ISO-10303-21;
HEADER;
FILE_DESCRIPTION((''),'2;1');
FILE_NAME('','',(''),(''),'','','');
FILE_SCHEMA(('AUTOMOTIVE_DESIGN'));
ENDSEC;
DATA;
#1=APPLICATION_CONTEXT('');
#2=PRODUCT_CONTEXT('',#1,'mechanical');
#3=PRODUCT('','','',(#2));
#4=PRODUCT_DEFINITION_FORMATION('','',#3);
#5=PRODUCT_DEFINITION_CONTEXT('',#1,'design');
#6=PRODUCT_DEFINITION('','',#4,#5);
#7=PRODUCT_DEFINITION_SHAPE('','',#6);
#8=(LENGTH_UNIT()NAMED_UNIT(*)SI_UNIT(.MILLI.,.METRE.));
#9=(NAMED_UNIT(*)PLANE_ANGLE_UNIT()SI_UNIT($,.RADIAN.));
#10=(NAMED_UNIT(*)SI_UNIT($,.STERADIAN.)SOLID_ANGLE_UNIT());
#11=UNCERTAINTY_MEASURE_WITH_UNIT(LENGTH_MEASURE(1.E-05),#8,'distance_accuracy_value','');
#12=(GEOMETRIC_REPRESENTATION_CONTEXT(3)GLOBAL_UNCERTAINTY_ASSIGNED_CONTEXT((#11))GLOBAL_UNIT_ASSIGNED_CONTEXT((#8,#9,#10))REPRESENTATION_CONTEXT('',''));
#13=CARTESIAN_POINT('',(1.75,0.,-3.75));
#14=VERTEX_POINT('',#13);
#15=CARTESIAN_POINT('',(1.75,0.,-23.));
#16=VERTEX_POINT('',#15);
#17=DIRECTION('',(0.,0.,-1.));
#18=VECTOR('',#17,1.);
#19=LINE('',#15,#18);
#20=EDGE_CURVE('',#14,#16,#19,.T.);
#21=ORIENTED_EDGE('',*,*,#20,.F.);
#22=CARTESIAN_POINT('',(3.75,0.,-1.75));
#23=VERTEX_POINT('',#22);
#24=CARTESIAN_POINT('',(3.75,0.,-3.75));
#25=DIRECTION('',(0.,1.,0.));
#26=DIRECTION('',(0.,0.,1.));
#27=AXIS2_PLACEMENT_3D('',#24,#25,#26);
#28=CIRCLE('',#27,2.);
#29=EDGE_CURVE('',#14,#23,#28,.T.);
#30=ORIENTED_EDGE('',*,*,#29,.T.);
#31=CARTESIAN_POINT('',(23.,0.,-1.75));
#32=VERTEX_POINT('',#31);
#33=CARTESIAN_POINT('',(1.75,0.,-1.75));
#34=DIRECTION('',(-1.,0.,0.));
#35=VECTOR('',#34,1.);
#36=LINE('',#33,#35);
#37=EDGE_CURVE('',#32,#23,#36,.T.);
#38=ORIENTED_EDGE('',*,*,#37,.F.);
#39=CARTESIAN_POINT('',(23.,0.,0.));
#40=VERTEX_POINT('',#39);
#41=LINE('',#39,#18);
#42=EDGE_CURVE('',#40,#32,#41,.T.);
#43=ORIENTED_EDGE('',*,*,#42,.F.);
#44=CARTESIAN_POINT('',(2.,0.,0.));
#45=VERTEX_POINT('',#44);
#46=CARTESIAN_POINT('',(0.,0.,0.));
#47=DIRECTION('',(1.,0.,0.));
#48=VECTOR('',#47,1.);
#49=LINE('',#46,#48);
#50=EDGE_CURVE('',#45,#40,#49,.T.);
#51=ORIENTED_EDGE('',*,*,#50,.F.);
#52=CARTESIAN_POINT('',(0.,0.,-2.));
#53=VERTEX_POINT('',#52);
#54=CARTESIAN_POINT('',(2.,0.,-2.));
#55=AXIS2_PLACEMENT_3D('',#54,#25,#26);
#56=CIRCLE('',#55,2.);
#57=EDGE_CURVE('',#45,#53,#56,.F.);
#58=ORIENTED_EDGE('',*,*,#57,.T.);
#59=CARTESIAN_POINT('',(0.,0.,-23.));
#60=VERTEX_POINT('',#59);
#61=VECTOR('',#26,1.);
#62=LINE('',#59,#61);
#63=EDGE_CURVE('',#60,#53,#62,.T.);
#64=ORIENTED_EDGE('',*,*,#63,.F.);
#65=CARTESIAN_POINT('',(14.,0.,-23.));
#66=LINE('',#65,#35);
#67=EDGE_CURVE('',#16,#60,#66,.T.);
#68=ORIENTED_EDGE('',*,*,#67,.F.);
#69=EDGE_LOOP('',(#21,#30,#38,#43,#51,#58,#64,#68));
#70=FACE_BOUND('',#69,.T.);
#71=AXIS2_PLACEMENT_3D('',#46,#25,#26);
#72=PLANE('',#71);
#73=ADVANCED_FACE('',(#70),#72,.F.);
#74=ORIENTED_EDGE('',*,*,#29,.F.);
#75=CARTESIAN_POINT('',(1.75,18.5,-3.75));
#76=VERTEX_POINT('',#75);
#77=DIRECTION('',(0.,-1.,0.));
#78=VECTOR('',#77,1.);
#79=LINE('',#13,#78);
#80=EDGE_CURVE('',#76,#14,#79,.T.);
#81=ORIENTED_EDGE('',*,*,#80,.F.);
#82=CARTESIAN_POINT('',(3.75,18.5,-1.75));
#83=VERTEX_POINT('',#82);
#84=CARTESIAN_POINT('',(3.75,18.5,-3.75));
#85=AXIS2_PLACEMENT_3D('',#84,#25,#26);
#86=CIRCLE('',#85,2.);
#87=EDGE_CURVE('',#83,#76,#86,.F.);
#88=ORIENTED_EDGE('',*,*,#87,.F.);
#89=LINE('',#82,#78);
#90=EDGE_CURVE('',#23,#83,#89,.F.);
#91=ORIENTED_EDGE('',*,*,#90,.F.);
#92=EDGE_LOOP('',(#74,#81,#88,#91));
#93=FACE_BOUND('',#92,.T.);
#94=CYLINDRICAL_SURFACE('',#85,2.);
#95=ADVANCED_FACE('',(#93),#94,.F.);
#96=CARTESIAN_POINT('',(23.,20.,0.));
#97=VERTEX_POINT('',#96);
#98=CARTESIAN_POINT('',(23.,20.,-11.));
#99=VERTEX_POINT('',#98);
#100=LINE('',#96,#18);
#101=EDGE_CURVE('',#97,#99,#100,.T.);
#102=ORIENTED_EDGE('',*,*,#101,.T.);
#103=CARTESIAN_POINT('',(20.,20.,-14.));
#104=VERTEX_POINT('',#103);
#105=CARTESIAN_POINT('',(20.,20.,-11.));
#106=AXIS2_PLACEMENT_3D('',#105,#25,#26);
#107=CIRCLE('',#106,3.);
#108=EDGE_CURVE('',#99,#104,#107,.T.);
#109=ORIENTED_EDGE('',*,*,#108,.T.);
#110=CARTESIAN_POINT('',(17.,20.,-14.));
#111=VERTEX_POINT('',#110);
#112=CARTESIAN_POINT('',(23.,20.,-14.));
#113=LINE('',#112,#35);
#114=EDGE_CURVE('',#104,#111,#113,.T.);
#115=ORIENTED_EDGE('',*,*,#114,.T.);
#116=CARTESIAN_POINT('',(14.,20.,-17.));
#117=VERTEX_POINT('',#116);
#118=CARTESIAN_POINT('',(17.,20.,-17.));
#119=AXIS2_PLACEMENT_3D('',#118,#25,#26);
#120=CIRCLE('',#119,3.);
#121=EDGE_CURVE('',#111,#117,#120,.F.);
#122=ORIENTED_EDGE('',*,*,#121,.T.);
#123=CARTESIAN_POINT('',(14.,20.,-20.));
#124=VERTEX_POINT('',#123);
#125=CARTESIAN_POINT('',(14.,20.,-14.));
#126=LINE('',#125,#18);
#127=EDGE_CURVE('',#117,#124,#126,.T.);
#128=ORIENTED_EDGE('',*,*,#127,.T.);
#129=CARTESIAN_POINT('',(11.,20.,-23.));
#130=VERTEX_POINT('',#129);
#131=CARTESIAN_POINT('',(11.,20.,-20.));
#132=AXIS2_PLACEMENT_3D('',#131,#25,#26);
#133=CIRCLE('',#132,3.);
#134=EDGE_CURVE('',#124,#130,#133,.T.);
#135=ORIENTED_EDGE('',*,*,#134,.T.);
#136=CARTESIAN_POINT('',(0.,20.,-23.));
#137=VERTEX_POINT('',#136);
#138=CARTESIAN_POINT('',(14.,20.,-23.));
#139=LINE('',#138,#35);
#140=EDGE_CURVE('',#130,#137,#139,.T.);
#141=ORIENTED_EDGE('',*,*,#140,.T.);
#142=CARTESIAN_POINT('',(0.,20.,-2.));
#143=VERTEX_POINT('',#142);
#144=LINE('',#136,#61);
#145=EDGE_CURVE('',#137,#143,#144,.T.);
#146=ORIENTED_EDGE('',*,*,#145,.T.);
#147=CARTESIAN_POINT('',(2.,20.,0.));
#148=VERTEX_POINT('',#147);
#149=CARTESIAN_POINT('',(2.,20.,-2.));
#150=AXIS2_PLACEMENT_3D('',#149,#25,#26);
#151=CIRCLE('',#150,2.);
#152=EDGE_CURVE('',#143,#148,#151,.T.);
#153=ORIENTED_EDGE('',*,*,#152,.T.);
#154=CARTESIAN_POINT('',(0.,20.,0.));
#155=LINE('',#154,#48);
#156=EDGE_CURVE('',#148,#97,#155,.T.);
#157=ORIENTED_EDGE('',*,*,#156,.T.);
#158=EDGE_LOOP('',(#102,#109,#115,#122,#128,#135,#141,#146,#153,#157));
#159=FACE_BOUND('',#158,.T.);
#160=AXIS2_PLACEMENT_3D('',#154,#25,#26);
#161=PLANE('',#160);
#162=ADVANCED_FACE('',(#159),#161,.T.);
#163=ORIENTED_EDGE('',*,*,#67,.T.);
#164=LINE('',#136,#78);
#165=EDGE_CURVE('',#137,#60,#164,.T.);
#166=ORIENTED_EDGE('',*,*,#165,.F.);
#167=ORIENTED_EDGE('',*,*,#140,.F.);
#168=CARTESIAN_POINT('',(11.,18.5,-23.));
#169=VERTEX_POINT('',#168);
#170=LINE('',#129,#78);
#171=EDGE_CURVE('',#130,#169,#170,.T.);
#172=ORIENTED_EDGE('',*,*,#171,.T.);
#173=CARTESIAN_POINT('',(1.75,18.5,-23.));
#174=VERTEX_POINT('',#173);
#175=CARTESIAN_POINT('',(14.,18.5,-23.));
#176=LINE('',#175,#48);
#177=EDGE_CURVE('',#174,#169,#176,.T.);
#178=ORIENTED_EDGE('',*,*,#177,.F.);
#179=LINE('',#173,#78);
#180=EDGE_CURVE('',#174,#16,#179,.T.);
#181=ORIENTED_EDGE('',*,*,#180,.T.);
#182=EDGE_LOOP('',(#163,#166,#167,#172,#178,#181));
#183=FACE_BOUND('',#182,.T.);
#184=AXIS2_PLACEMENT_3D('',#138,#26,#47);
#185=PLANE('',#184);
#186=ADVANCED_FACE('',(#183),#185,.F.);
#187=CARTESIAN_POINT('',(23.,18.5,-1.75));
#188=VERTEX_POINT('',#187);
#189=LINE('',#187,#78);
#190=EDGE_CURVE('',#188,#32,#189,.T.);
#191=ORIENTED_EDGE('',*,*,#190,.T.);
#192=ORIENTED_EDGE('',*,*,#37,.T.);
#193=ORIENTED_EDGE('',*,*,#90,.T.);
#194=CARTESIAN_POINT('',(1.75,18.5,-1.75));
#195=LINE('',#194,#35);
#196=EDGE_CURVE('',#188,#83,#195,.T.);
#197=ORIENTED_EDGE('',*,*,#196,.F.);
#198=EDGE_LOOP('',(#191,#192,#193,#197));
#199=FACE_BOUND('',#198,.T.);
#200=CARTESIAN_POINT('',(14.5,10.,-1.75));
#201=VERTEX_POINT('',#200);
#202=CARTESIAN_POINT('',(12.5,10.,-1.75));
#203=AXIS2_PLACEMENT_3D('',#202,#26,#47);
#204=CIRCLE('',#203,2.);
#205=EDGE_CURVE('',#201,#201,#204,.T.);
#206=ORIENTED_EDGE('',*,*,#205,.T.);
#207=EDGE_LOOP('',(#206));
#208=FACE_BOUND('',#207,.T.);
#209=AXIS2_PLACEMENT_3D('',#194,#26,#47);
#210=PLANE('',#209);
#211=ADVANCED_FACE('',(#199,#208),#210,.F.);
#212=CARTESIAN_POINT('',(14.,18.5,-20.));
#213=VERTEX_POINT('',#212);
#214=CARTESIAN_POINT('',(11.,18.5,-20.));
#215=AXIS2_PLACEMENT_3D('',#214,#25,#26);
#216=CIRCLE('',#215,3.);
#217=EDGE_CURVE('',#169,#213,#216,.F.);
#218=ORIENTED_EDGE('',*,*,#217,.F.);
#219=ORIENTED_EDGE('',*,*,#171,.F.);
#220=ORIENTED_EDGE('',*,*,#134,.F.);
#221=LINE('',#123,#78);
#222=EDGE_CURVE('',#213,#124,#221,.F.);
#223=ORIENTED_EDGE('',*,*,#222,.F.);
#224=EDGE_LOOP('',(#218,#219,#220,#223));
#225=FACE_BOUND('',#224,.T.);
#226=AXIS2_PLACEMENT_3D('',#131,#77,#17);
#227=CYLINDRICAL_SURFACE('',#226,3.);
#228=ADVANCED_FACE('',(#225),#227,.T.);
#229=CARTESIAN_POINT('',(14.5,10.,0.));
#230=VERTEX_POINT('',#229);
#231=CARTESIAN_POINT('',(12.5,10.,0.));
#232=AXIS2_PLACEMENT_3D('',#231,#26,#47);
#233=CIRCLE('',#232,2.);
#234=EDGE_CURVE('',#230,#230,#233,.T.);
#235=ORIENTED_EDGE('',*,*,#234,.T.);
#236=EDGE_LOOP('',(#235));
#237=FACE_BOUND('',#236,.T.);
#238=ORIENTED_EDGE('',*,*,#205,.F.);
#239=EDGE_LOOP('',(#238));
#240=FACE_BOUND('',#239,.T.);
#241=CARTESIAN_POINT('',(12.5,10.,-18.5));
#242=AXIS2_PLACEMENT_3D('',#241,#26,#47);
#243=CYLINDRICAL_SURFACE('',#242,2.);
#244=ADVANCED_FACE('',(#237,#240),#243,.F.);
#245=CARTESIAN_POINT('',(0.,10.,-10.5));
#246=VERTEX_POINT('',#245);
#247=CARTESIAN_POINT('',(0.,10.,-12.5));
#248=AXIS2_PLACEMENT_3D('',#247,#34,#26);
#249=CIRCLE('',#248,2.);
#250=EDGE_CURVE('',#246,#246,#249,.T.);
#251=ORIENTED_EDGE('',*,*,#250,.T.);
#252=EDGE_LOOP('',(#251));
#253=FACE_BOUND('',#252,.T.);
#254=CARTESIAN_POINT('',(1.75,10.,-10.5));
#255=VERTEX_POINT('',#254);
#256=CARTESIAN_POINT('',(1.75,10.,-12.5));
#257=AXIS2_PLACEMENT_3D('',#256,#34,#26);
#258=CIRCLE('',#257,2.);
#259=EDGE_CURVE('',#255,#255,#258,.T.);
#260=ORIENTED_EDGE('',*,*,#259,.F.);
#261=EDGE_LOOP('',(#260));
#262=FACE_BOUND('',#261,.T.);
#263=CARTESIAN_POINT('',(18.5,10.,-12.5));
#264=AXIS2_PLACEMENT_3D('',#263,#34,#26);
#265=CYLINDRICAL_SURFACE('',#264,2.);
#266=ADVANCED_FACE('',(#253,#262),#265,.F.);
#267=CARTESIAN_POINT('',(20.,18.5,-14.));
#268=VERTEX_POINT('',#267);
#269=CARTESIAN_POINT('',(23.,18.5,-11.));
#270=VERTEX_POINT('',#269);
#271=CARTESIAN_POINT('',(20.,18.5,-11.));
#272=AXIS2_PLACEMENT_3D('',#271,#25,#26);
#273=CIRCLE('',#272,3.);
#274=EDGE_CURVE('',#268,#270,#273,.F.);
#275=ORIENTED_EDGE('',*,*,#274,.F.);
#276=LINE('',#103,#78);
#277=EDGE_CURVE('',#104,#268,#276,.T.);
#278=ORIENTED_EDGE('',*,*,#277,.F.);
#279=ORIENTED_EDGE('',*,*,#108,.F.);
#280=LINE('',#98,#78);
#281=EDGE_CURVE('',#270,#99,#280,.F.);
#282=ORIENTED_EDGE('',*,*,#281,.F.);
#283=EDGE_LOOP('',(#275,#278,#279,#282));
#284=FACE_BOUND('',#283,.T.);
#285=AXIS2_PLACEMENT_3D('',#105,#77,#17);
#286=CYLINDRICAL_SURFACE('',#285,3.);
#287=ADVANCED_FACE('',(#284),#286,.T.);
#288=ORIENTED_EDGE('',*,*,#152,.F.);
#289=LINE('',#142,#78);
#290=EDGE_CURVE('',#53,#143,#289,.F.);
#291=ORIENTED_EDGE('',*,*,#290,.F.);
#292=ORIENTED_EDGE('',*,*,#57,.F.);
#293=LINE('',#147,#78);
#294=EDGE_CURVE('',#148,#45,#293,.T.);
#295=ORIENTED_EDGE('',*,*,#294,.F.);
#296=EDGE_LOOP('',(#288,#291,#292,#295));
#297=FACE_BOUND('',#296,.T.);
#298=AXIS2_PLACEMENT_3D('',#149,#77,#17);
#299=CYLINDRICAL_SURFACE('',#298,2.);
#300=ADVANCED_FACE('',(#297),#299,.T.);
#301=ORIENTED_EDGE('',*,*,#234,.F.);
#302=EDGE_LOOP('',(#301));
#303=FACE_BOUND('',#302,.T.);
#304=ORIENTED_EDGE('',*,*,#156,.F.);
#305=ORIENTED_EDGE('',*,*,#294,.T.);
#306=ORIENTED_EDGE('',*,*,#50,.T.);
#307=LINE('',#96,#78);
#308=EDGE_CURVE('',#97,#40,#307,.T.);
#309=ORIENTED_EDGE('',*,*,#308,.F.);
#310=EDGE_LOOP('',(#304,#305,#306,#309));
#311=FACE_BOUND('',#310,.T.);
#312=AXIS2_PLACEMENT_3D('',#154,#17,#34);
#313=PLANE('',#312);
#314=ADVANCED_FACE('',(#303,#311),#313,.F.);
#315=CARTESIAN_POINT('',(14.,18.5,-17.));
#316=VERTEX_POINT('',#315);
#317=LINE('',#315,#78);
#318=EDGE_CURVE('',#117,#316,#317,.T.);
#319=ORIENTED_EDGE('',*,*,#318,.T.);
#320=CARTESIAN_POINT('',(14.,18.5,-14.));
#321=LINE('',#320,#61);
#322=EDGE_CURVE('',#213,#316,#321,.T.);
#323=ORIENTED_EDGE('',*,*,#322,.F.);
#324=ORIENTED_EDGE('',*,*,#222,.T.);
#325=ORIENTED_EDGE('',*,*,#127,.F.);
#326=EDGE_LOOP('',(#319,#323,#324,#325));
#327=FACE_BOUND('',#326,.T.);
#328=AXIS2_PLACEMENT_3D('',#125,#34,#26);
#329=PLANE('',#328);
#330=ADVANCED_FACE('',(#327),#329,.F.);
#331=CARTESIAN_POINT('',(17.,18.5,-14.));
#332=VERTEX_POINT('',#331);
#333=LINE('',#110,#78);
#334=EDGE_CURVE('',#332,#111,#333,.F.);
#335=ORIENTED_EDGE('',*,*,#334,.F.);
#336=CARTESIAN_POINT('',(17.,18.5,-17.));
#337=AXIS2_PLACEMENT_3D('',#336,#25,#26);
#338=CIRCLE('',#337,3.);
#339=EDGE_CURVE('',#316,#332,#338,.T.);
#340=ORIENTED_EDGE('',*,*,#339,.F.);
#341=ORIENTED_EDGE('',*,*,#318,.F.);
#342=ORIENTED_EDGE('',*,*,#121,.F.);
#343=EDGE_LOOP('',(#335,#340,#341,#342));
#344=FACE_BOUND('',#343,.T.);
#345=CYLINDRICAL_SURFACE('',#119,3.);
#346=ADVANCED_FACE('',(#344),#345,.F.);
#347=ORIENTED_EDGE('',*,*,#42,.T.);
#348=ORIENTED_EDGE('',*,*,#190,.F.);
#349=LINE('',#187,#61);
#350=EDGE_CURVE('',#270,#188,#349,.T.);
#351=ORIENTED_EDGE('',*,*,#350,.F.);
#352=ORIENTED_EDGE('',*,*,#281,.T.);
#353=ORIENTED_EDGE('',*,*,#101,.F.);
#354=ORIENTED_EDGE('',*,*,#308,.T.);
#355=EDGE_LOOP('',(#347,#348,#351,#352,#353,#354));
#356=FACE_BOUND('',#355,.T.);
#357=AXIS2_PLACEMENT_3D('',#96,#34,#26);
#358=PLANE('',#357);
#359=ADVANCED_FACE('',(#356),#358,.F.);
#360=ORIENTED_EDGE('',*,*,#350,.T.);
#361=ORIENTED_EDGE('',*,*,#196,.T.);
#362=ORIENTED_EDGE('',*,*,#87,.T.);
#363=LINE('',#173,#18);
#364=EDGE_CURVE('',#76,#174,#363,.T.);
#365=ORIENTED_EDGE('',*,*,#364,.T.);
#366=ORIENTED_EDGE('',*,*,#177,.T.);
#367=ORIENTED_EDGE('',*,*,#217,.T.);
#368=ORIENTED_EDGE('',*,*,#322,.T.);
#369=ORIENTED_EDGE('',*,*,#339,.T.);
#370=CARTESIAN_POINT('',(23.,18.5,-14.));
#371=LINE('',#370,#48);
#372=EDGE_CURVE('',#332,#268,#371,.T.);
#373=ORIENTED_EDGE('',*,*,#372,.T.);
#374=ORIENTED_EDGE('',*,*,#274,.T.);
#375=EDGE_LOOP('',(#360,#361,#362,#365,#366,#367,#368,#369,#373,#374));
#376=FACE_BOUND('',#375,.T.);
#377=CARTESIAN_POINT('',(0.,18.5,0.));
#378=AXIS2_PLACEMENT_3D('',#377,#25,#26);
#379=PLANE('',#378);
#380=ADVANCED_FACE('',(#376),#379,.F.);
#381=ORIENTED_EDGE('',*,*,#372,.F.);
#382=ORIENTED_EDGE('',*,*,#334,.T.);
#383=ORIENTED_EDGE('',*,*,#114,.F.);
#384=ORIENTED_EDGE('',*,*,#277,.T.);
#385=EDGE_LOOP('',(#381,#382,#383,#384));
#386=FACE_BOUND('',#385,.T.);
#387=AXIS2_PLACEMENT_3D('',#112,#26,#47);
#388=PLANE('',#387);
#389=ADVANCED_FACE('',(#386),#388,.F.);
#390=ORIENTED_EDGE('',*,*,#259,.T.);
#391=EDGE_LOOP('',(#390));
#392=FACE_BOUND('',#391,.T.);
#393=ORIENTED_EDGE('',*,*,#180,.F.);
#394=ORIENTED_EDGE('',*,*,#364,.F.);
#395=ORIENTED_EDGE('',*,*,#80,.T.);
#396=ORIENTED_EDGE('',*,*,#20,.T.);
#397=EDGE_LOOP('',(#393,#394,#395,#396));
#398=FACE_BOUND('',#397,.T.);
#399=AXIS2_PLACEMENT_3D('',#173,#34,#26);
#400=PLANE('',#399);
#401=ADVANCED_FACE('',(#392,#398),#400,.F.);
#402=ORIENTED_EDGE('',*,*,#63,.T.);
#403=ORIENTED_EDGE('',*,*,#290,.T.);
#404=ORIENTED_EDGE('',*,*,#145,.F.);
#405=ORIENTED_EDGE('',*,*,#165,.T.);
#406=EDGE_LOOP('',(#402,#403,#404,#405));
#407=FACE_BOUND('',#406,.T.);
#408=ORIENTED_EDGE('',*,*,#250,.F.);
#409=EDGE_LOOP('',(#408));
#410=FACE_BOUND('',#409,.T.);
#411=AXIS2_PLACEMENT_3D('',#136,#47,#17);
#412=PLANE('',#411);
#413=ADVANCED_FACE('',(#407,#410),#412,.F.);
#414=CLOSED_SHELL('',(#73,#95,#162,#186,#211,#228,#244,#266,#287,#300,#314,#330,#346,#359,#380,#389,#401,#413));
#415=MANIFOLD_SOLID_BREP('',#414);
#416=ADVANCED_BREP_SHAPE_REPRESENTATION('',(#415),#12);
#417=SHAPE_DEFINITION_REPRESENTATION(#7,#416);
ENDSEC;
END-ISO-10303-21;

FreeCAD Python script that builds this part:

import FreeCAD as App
import Part
import Sketcher
Q = App.Units.Quantity


def edges_at(feature, points):
    """Names of the edges that pass closest to the given points."""
    edges = feature.Shape.Edges
    near = lambda p: min(range(len(edges)), key=lambda i: edges[i].distToShape(Part.Vertex(*p))[0])
    return sorted({f"Edge{near(p) + 1}" for p in points})

doc = App.newDocument("Part")
params = doc.addObject("Spreadsheet::Sheet", "Params")
for row, (alias, value) in enumerate([
    ("sketch1_width", "23 mm"),
    ("sketch1_width2", "9 mm"),
    ("pad1_length", "20 mm"),
    ("sketch2_width", "9 mm"),
    ("sketch2_width2", "12.25 mm"),
    ("pocket1_length", "18.5 mm"),
    ("fillet_radius", "2 mm"),
    ("fillet2_radius", "3 mm"),
    ("sketch3_diameter", "4 mm"),
    ("pocket2_length", "18.5 mm"),
    ("sketch4_diameter", "4 mm"),
    ("pocket3_length", "18.5 mm"),
], start=1):
    params.set(f"A{row}", alias)
    params.set(f"B{row}", "=" + value)
    params.setAlias(f"B{row}", alias)

body = doc.addObject("PartDesign::Body", "Body")

sketch1 = doc.addObject("Sketcher::SketchObject", "Sketch")
body.addObject(sketch1)
sketch1.AttachmentSupport = (doc.XZ_Plane, [""])
sketch1.MapMode = "FlatFace"
sketch1.addGeometry(Part.LineSegment(App.Vector(0, 0, 0), App.Vector(23, 0, 0)), False)
sketch1.addGeometry(Part.LineSegment(App.Vector(23, 0, 0), App.Vector(23, -14, 0)), False)
sketch1.addGeometry(Part.LineSegment(App.Vector(23, -14, 0), App.Vector(14, -14, 0)), False)
sketch1.addGeometry(Part.LineSegment(App.Vector(14, -14, 0), App.Vector(14, -23, 0)), False)
sketch1.addGeometry(Part.LineSegment(App.Vector(14, -23, 0), App.Vector(0, -23, 0)), False)
sketch1.addGeometry(Part.LineSegment(App.Vector(0, -23, 0), App.Vector(0, 0, 0)), False)
sketch1.addConstraint(Sketcher.Constraint("Coincident", 0, 2, 1, 1))
sketch1.addConstraint(Sketcher.Constraint("Coincident", 1, 2, 2, 1))
sketch1.addConstraint(Sketcher.Constraint("Coincident", 2, 2, 3, 1))
sketch1.addConstraint(Sketcher.Constraint("Coincident", 3, 2, 4, 1))
sketch1.addConstraint(Sketcher.Constraint("Coincident", 4, 2, 5, 1))
sketch1.addConstraint(Sketcher.Constraint("Coincident", 5, 2, 0, 1))
sketch1.addConstraint(Sketcher.Constraint("Horizontal", 0))
sketch1.addConstraint(Sketcher.Constraint("Vertical", 1))
sketch1.addConstraint(Sketcher.Constraint("Horizontal", 2))
sketch1.addConstraint(Sketcher.Constraint("Vertical", 3))
sketch1.addConstraint(Sketcher.Constraint("Horizontal", 4))
sketch1.addConstraint(Sketcher.Constraint("Vertical", 5))
sketch1.addConstraint(Sketcher.Constraint("Coincident", 5, 2, -1, 1))
sketch1.addConstraint(Sketcher.Constraint("Equal", 4, 1))
sketch1.addConstraint(Sketcher.Constraint("Equal", 2, 3))
sketch1.addConstraint(Sketcher.Constraint("DistanceX", 0, 1, 0, 2, Q("23 mm")))
sketch1.addConstraint(Sketcher.Constraint("DistanceX", 2, 2, 2, 1, Q("9 mm")))
sketch1.setExpression("Constraints[15]", "Params.sketch1_width")
sketch1.setExpression("Constraints[16]", "Params.sketch1_width2")
pad1 = doc.addObject("PartDesign::Pad", "Pad")
body.addObject(pad1)
pad1.Profile = sketch1
pad1.setExpression("Length", "Params.pad1_length")
pad1.Reversed = True

sketch2 = doc.addObject("Sketcher::SketchObject", "Sketch001")
body.addObject(sketch2)
sketch2.AttachmentSupport = (doc.XZ_Plane, [""])
sketch2.MapMode = "FlatFace"
sketch2.addGeometry(Part.LineSegment(App.Vector(2, -2, 0), App.Vector(2, -23, 0)), False)
sketch2.addGeometry(Part.LineSegment(App.Vector(2, -23, 0), App.Vector(14, -23, 0)), False)
sketch2.addGeometry(Part.LineSegment(App.Vector(14, -23, 0), App.Vector(14, -14, 0)), False)
sketch2.addGeometry(Part.LineSegment(App.Vector(14, -14, 0), App.Vector(23, -14, 0)), False)
sketch2.addGeometry(Part.LineSegment(App.Vector(23, -14, 0), App.Vector(23, -2, 0)), False)
sketch2.addGeometry(Part.LineSegment(App.Vector(23, -2, 0), App.Vector(2, -2, 0)), False)
sketch2.addConstraint(Sketcher.Constraint("Coincident", 0, 2, 1, 1))
sketch2.addConstraint(Sketcher.Constraint("Coincident", 1, 2, 2, 1))
sketch2.addConstraint(Sketcher.Constraint("Coincident", 2, 2, 3, 1))
sketch2.addConstraint(Sketcher.Constraint("Coincident", 3, 2, 4, 1))
sketch2.addConstraint(Sketcher.Constraint("Coincident", 4, 2, 5, 1))
sketch2.addConstraint(Sketcher.Constraint("Coincident", 5, 2, 0, 1))
sketch2.addConstraint(Sketcher.Constraint("Vertical", 0))
sketch2.addConstraint(Sketcher.Constraint("Horizontal", 1))
sketch2.addConstraint(Sketcher.Constraint("Vertical", 2))
sketch2.addConstraint(Sketcher.Constraint("Horizontal", 3))
sketch2.addConstraint(Sketcher.Constraint("Vertical", 4))
sketch2.addConstraint(Sketcher.Constraint("Horizontal", 5))
sketch2.addConstraint(Sketcher.Constraint("Equal", 5, 0))
sketch2.addConstraint(Sketcher.Constraint("Equal", 3, 2))
sketch2.addConstraint(Sketcher.Constraint("DistanceX", 3, 1, 3, 2, Q("9 mm")))
sketch2.addConstraint(Sketcher.Constraint("DistanceY", 0, 2, -1, 1, Q("23 mm")))
sketch2.addConstraint(Sketcher.Constraint("DistanceX", -1, 1, 1, 2, Q("14 mm")))
sketch2.addConstraint(Sketcher.Constraint("DistanceX", 1, 1, 1, 2, Q("12.25 mm")))
sketch2.setExpression("Constraints[14]", "Params.sketch2_width")
sketch2.setExpression("Constraints[17]", "Params.sketch2_width2")
pocket1 = doc.addObject("PartDesign::Pocket", "Pocket")
body.addObject(pocket1)
pocket1.Profile = sketch2
pocket1.setExpression("Length", "Params.pocket1_length")
doc.recompute()

fillet = doc.addObject("PartDesign::Fillet", "Fillet")
body.addObject(fillet)
fillet.Base = (pocket1, edges_at(pocket1, [(0, 10, 0), (1.75, 9.25, -1.75)]))
fillet.setExpression("Radius", "Params.fillet_radius")
doc.recompute()

fillet2 = doc.addObject("PartDesign::Fillet", "Fillet001")
body.addObject(fillet2)
fillet2.Base = (fillet, edges_at(fillet, [(14, 19.25, -23), (14, 19.25, -14), (23, 19.25, -14)]))
fillet2.setExpression("Radius", "Params.fillet2_radius")

sketch3 = doc.addObject("Sketcher::SketchObject", "Sketch002")
body.addObject(sketch3)
sketch3.AttachmentSupport = (doc.YZ_Plane, [""])
sketch3.MapMode = "FlatFace"
sketch3.addGeometry(Part.Circle(App.Vector(10, -12.5, 0), App.Vector(0, 0, 1), 2), False)
sketch3.addConstraint(Sketcher.Constraint("Diameter", 0, Q("4 mm")))
sketch3.addConstraint(Sketcher.Constraint("DistanceX", -1, 1, 0, 3, Q("10 mm")))
sketch3.addConstraint(Sketcher.Constraint("DistanceY", 0, 3, -1, 1, Q("12.5 mm")))
sketch3.setExpression("Constraints[0]", "Params.sketch3_diameter")
pocket2 = doc.addObject("PartDesign::Pocket", "Pocket001")
body.addObject(pocket2)
pocket2.Profile = sketch3
pocket2.setExpression("Length", "Params.pocket2_length")
pocket2.Reversed = True

sketch4 = doc.addObject("Sketcher::SketchObject", "Sketch003")
body.addObject(sketch4)
sketch4.AttachmentSupport = (doc.XY_Plane, [""])
sketch4.MapMode = "FlatFace"
sketch4.addGeometry(Part.Circle(App.Vector(12.5, 10, 0), App.Vector(0, 0, 1), 2), False)
sketch4.addConstraint(Sketcher.Constraint("Diameter", 0, Q("4 mm")))
sketch4.addConstraint(Sketcher.Constraint("DistanceY", -1, 1, 0, 3, Q("10 mm")))
sketch4.addConstraint(Sketcher.Constraint("DistanceX", -1, 1, 0, 3, Q("12.5 mm")))
sketch4.setExpression("Constraints[0]", "Params.sketch4_diameter")
pocket3 = doc.addObject("PartDesign::Pocket", "Pocket002")
body.addObject(pocket3)
pocket3.Profile = sketch4
pocket3.setExpression("Length", "Params.pocket3_length")

doc.recompute()
